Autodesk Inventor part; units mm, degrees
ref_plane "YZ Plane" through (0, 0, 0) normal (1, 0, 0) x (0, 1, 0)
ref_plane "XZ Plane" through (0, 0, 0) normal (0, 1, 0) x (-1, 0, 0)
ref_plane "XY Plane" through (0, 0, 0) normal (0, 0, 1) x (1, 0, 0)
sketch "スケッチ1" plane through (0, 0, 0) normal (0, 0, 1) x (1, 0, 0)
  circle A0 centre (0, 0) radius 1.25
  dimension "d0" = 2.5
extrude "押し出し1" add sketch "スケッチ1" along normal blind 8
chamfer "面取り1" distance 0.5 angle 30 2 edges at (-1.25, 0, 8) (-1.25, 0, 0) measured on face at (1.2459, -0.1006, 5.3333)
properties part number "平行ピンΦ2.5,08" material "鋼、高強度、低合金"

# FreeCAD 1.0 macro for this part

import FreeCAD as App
import Part
import Sketcher
Q = App.Units.Quantity


def edges_at(feature, points):
    """Names of the edges that pass closest to the given points."""
    edges = feature.Shape.Edges
    near = lambda p: min(range(len(edges)), key=lambda i: edges[i].distToShape(Part.Vertex(*p))[0])
    return sorted({f"Edge{near(p) + 1}" for p in points})

doc = App.newDocument("Part")
body = doc.addObject("PartDesign::Body", "Body")

# Sketch on XY plane
sketch1 = body.newObject("Sketcher::SketchObject", "Sketch")
sketch1.AttachmentSupport = (doc.getObject("XY_Plane"), [""])
sketch1.MapMode = "FlatFace"
sketch1.addGeometry(Part.Circle(App.Vector(0, 0, 0), App.Vector(0, 0, 1), 1.2), False)
sketch1.addConstraint(Sketcher.Constraint("Coincident", 0, 3, -1, 1))
sketch1.addConstraint(Sketcher.Constraint("Diameter", 0, Q("2.5 mm")))
pad1 = body.newObject("PartDesign::Pad", "Pad")
pad1.Profile = sketch1
pad1.Length = 8
doc.recompute()

chamfer = body.newObject("PartDesign::Chamfer", "Chamfer")
chamfer.Base = (pad1, edges_at(pad1, [(-1.25, 0, 8), (-1.25, 0, 0)]))
chamfer.ChamferType = "Distance and Angle"
chamfer.Size = 0.5
chamfer.Angle = 30

doc.recompute()
